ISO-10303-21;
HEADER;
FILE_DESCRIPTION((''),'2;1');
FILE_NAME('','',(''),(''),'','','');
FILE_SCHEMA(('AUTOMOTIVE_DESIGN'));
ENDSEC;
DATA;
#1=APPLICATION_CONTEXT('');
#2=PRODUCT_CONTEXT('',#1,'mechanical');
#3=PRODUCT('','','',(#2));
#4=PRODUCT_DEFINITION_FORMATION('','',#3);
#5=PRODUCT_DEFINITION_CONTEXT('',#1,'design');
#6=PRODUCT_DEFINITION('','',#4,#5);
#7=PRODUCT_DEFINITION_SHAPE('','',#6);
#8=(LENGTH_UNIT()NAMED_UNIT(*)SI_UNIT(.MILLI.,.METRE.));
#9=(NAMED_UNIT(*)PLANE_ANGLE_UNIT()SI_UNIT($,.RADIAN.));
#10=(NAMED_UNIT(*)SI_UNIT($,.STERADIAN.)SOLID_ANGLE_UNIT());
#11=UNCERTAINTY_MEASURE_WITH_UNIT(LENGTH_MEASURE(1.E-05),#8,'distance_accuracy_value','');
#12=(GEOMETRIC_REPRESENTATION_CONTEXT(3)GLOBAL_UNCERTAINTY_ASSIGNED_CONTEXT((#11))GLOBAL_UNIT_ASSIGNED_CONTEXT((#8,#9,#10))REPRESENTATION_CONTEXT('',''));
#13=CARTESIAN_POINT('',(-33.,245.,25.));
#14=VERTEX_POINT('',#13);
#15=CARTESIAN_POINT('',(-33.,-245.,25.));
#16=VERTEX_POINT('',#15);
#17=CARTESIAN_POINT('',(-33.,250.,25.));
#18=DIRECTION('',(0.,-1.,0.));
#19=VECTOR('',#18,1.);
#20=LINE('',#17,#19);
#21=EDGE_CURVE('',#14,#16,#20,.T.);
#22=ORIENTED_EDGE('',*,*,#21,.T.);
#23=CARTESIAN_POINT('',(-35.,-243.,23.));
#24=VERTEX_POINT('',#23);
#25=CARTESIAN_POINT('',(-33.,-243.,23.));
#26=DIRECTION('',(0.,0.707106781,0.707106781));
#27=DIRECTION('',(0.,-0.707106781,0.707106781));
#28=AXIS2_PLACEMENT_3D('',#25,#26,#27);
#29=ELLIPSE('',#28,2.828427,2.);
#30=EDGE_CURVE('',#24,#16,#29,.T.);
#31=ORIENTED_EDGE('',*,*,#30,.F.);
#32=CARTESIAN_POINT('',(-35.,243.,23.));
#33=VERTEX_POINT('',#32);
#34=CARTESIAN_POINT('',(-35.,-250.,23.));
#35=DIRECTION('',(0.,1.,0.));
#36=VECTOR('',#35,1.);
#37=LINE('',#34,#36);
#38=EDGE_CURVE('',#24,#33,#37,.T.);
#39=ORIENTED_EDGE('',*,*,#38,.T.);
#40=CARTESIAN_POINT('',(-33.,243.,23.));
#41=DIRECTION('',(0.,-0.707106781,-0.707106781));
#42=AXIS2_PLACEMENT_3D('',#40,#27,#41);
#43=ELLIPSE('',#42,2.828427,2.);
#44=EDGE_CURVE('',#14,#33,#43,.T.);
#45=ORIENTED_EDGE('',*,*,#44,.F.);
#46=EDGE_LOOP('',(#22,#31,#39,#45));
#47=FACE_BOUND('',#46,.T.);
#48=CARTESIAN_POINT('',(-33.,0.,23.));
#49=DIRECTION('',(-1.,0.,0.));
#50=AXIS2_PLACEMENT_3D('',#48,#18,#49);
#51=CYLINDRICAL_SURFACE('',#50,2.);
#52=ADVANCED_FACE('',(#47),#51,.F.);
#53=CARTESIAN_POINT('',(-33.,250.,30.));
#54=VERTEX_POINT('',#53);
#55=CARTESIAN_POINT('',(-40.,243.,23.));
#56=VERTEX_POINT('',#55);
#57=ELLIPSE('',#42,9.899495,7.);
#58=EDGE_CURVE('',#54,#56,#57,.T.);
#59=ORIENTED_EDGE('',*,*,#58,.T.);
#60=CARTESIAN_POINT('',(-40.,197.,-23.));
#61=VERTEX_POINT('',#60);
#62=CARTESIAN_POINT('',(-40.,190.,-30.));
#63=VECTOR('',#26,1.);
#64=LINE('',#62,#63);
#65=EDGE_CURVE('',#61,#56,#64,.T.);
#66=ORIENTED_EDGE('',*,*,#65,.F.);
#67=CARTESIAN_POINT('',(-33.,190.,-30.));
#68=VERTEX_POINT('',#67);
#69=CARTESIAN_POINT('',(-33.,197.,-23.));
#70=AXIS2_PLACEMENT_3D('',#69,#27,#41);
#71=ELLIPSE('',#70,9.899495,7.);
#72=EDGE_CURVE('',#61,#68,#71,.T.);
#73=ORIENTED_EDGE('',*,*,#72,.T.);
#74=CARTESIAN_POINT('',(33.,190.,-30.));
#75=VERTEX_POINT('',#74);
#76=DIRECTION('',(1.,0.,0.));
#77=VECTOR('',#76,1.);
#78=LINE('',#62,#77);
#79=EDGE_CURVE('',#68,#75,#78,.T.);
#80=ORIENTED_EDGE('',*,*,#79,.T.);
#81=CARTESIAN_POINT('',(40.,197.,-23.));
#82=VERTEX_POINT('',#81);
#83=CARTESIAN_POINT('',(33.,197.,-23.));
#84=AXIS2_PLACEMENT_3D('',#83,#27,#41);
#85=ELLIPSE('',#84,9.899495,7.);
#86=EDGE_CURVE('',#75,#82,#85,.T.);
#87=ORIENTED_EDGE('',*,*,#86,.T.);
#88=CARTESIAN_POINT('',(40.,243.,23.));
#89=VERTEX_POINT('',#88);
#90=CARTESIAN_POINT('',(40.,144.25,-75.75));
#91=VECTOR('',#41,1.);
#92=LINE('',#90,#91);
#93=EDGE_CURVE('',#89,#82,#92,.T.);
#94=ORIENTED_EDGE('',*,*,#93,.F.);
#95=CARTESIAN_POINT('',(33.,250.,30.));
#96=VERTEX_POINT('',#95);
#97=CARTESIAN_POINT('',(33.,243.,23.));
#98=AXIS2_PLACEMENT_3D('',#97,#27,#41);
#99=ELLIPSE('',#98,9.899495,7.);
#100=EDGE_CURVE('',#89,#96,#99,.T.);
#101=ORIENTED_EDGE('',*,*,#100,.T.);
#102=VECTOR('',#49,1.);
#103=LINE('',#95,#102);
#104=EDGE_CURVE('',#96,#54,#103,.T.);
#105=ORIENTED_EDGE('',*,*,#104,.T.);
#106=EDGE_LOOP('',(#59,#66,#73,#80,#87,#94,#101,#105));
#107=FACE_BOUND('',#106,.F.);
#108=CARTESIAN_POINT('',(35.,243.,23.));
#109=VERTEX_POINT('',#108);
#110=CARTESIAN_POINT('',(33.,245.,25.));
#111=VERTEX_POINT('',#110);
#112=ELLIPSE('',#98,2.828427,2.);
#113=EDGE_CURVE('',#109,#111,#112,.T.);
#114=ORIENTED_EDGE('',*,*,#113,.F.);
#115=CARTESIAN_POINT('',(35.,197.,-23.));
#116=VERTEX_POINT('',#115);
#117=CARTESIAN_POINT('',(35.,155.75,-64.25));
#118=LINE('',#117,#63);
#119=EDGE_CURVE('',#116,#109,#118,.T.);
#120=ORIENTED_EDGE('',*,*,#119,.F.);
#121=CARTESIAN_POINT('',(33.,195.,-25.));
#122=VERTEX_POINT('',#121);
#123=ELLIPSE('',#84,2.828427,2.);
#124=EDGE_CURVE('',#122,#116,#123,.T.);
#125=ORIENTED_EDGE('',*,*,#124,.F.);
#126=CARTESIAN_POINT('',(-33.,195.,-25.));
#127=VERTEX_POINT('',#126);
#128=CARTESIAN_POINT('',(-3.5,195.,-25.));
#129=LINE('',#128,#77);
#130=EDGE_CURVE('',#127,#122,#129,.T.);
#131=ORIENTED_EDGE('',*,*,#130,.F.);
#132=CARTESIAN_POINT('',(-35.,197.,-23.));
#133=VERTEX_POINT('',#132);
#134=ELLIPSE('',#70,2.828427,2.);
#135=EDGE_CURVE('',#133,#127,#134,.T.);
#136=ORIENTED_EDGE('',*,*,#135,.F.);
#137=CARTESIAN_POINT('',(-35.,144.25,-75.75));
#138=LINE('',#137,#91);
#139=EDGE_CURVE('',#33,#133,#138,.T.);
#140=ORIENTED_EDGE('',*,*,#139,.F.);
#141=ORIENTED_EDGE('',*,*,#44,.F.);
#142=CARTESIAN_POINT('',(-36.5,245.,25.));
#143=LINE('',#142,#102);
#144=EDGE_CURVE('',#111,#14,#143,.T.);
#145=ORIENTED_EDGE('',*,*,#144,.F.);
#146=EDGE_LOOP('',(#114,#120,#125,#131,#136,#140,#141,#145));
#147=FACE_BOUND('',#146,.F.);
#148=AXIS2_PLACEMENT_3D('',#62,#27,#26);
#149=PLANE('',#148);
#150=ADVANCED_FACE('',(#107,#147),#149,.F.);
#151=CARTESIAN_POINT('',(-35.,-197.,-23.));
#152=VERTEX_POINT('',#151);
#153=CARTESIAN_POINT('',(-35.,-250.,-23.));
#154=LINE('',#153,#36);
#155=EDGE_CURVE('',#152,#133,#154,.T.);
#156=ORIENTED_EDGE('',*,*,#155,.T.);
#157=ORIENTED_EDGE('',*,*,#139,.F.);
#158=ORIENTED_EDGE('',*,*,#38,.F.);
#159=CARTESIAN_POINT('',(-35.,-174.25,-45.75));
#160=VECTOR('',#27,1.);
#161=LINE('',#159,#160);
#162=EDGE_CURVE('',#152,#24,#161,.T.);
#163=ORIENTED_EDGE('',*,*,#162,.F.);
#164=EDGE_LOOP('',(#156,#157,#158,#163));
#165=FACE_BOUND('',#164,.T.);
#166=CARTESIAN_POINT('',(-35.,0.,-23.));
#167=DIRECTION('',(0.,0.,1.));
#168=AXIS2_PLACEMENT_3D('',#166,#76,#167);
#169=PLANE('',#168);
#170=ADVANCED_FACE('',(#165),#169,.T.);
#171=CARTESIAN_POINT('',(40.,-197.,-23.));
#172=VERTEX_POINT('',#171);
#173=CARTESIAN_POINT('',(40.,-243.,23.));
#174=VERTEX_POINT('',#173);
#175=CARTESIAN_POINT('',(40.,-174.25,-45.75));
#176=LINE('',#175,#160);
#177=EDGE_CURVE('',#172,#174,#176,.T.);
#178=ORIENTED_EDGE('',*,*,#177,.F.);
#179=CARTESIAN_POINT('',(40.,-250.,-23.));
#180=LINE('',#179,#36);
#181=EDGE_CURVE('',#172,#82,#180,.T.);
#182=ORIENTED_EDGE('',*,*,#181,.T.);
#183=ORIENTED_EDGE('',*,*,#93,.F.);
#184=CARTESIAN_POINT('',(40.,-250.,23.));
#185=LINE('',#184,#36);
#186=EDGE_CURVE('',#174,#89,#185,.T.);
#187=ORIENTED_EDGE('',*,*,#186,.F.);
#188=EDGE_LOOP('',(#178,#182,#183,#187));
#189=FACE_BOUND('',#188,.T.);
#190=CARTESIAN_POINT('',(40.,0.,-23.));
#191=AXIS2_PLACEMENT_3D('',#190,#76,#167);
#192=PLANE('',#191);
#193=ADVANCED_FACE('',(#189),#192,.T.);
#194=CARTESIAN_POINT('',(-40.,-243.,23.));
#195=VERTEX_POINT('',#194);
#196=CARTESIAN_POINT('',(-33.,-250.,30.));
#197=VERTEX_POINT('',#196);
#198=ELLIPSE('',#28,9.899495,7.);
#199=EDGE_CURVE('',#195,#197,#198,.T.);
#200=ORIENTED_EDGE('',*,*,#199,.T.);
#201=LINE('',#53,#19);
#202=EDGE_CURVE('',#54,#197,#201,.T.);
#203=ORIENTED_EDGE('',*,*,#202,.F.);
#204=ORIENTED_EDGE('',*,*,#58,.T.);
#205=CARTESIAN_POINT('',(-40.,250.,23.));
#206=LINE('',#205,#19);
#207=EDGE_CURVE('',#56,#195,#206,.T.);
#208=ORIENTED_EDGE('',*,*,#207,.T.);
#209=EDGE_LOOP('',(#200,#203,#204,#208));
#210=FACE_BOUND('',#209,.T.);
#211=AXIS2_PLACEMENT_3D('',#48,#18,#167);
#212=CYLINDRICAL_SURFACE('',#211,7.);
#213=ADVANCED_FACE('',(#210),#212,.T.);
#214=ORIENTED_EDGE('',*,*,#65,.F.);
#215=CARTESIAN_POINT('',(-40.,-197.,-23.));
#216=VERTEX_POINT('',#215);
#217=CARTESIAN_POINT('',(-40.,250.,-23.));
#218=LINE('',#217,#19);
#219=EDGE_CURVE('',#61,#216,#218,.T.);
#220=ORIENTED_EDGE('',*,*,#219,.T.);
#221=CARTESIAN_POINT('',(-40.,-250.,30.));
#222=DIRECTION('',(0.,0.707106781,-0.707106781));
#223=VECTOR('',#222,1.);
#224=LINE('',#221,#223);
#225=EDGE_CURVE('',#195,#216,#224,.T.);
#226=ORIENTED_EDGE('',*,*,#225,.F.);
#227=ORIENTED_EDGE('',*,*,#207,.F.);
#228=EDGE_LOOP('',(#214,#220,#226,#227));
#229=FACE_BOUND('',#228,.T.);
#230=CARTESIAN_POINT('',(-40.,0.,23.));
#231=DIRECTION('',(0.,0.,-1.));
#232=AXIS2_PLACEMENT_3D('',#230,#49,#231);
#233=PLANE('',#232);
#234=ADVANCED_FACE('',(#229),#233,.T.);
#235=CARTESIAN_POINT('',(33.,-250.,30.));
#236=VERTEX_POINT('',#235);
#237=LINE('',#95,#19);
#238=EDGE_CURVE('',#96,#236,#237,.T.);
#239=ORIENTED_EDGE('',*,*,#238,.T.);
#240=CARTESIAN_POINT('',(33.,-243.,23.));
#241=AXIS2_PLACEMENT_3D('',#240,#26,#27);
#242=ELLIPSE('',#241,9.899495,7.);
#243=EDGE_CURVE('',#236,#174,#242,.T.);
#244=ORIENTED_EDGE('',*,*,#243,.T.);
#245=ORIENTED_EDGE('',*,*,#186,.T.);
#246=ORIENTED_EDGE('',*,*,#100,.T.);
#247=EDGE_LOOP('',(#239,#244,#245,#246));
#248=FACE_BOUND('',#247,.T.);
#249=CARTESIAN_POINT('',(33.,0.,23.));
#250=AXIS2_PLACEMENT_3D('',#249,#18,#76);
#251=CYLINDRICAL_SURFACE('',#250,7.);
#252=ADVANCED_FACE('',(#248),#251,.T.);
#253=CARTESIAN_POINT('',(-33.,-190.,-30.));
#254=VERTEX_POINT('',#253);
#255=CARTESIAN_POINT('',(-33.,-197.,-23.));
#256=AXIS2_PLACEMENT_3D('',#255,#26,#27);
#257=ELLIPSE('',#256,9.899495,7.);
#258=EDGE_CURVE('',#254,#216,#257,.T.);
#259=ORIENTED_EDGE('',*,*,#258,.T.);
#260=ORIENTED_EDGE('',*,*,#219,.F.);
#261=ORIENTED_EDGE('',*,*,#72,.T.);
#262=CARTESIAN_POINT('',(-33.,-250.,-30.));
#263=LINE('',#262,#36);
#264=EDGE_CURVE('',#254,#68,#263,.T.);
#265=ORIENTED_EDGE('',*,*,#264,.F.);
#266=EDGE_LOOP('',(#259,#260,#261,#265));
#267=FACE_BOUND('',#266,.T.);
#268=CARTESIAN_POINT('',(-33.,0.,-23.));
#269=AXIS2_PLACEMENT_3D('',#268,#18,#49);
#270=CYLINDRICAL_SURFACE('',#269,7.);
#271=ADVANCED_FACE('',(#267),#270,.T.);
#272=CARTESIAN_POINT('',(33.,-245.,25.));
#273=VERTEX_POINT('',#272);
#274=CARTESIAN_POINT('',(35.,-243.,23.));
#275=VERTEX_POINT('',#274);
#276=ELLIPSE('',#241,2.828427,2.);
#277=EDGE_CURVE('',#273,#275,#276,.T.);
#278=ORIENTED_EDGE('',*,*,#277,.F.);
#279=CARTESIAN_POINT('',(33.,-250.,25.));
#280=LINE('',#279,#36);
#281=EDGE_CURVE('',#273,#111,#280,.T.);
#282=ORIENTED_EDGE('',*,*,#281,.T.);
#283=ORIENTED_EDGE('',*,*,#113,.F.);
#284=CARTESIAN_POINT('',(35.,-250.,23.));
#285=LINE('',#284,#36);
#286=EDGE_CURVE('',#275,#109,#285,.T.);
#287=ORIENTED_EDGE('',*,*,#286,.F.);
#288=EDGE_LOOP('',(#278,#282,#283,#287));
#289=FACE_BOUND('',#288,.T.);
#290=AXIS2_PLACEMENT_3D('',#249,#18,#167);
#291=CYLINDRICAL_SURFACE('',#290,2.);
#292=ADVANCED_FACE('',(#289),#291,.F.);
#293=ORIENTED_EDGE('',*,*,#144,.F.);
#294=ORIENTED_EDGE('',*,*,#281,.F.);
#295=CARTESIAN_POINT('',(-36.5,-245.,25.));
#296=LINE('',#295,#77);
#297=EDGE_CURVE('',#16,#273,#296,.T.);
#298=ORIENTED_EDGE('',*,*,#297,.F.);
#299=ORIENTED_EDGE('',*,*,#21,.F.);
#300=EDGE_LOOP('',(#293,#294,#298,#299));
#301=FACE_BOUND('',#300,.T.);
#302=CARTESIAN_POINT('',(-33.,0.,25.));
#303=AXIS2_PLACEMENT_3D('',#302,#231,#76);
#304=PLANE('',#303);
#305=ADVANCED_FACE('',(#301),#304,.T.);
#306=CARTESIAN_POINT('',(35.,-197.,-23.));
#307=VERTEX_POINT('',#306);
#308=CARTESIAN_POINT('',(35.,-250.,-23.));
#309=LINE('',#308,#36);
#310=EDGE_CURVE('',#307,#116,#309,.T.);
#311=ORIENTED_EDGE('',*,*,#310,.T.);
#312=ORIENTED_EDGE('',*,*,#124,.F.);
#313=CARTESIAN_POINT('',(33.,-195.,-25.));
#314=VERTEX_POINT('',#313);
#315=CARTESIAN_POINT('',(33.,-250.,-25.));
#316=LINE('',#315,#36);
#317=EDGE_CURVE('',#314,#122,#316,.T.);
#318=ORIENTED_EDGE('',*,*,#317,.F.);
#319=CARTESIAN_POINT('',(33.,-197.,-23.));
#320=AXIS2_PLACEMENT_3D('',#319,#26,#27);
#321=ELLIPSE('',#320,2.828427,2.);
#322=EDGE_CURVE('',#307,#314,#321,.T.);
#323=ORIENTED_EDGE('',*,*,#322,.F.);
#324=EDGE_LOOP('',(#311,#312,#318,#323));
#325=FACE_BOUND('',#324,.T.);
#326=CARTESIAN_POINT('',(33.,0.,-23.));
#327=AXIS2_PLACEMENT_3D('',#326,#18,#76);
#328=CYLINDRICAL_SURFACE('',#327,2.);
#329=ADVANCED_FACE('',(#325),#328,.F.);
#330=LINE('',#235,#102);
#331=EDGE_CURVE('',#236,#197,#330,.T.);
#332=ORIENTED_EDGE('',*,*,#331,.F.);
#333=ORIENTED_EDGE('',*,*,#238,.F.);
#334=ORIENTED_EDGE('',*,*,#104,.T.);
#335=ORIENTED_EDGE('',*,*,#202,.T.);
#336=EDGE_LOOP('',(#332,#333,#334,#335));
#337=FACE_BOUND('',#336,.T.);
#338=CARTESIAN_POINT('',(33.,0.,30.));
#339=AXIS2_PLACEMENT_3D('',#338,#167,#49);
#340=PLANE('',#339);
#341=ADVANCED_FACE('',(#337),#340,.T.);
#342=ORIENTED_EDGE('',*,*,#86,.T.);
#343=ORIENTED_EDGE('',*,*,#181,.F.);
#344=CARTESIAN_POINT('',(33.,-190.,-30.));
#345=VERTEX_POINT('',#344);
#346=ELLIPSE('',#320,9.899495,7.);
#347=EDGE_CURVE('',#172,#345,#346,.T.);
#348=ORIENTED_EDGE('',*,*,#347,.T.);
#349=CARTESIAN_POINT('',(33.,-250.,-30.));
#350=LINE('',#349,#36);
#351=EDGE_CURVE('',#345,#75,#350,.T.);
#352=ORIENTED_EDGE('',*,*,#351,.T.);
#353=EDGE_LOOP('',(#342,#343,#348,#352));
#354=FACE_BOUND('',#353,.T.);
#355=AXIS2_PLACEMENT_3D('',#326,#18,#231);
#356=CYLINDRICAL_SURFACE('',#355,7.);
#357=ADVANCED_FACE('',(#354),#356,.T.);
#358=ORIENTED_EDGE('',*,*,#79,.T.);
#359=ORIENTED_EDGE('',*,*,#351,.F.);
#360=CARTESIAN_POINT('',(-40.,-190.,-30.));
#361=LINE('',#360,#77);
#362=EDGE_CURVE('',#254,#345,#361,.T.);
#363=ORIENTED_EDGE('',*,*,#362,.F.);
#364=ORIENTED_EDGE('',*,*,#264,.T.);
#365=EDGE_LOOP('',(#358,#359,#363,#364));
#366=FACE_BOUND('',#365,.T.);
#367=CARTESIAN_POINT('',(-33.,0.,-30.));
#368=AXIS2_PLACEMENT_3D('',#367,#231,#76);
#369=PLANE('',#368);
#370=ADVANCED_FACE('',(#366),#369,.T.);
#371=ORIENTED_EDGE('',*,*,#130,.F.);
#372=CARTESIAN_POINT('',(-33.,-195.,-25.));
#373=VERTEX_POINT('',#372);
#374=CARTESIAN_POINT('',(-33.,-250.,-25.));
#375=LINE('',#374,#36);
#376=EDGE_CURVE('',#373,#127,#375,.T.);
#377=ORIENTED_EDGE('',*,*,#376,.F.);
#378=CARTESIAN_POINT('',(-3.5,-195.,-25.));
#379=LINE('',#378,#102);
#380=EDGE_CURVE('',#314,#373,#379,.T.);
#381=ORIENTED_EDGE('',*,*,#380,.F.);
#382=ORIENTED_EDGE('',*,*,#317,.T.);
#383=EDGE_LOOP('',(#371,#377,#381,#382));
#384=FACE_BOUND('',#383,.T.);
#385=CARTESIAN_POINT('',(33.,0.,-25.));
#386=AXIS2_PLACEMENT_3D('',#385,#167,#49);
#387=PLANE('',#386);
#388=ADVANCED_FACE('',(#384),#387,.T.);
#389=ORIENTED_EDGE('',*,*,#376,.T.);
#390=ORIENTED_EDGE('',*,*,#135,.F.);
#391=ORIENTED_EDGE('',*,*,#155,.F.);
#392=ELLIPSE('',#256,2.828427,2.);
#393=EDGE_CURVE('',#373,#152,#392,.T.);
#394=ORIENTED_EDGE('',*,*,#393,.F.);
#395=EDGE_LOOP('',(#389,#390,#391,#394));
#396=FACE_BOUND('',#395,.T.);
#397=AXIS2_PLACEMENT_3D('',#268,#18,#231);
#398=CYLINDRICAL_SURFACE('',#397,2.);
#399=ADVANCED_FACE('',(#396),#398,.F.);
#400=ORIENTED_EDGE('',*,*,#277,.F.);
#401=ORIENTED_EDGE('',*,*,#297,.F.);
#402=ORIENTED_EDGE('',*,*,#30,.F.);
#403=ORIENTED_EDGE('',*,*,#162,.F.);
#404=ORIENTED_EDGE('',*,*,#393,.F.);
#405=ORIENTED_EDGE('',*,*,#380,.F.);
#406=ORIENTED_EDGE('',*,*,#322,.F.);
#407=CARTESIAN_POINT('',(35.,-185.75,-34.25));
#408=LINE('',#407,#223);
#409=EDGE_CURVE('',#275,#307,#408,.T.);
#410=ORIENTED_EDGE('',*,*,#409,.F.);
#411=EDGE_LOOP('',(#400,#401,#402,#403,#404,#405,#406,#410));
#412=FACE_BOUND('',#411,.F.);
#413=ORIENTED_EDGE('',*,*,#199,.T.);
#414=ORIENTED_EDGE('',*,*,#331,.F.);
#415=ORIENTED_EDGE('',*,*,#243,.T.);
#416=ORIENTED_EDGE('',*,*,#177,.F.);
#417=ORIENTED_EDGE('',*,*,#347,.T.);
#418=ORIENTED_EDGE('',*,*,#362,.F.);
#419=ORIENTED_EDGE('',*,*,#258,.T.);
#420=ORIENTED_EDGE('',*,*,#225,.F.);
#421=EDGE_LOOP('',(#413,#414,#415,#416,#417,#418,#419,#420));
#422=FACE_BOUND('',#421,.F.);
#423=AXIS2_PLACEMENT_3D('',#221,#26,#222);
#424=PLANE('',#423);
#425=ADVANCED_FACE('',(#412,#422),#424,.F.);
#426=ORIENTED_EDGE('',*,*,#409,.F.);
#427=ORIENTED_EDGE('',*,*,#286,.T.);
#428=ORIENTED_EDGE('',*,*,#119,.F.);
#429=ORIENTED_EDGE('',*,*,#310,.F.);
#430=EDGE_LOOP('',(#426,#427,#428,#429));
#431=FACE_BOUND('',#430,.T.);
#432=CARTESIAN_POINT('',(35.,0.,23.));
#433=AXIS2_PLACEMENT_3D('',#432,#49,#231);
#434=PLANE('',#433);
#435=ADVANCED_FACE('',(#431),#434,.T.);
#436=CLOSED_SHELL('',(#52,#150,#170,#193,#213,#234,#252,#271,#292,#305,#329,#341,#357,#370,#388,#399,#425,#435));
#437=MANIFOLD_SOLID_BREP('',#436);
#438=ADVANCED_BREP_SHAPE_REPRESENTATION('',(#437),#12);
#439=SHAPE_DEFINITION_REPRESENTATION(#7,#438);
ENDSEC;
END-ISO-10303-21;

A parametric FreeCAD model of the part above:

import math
import FreeCAD as App
import Part
import Sketcher
from FreeCAD import Vector
Q = App.Units.Quantity


def add_polygon(sketch, points):
    """Adds a closed chain of lines whose ends are joined by coincident constraints."""
    first, n = sketch.GeometryCount, len(points)
    for a, b in zip(points, points[1:] + points[:1]):
        sketch.addGeometry(Part.LineSegment(App.Vector(*a, 0), App.Vector(*b, 0)), False)
    for i in range(n):
        sketch.addConstraint(Sketcher.Constraint("Coincident", first + i, 2, first + (i + 1) % n, 1))

doc = App.newDocument("Part")
body = doc.addObject("PartDesign::Body", "Body")

# Sketch on XZ plane
sketch1 = doc.addObject("Sketcher::SketchObject", "Sketch")
body.addObject(sketch1)
sketch1.AttachmentSupport = (doc.XZ_Plane, [""])
sketch1.MapMode = "FlatFace"
sketch1.addGeometry(Part.ArcOfCircle(Part.Circle(Vector(33, 23, 0), Vector(0, 0, 1), 7), math.radians(0), math.radians(90)), False)
sketch1.addGeometry(Part.LineSegment(Vector(33, 30, 0), Vector(-33, 30, 0)), False)
sketch1.addGeometry(Part.ArcOfCircle(Part.Circle(Vector(-33, 23, 0), Vector(0, 0, 1), 7), math.radians(90), math.radians(180)), False)
sketch1.addGeometry(Part.LineSegment(Vector(-40, 23, 0), Vector(-40, -23, 0)), False)
sketch1.addGeometry(Part.ArcOfCircle(Part.Circle(Vector(-33, -23, 0), Vector(0, 0, 1), 7), math.radians(180), math.radians(270)), False)
sketch1.addGeometry(Part.LineSegment(Vector(-33, -30, 0), Vector(33, -30, 0)), False)
sketch1.addGeometry(Part.ArcOfCircle(Part.Circle(Vector(33, -23, 0), Vector(0, 0, 1), 7), math.radians(-90), math.radians(0)), False)
sketch1.addGeometry(Part.LineSegment(Vector(40, -23, 0), Vector(40, 23, 0)), False)
sketch1.addGeometry(Part.ArcOfCircle(Part.Circle(Vector(-33, 23, 0), Vector(0, 0, 1), 2), math.radians(90), math.radians(180)), False)
sketch1.addGeometry(Part.LineSegment(Vector(-33, 25, 0), Vector(33, 25, 0)), False)
sketch1.addGeometry(Part.ArcOfCircle(Part.Circle(Vector(33, 23, 0), Vector(0, 0, 1), 2), math.radians(0), math.radians(90)), False)
sketch1.addGeometry(Part.LineSegment(Vector(35, 23, 0), Vector(35, -23, 0)), False)
sketch1.addGeometry(Part.ArcOfCircle(Part.Circle(Vector(33, -23, 0), Vector(0, 0, 1), 2), math.radians(-90), math.radians(0)), False)
sketch1.addGeometry(Part.LineSegment(Vector(33, -25, 0), Vector(-33, -25, 0)), False)
sketch1.addGeometry(Part.ArcOfCircle(Part.Circle(Vector(-33, -23, 0), Vector(0, 0, 1), 2), math.radians(180), math.radians(270)), False)
sketch1.addGeometry(Part.LineSegment(Vector(-35, -23, 0), Vector(-35, 23, 0)), False)
sketch1.addConstraint(Sketcher.Constraint("Tangent", 0, 2, 1, 1))
sketch1.addConstraint(Sketcher.Constraint("Tangent", 1, 2, 2, 1))
sketch1.addConstraint(Sketcher.Constraint("Tangent", 2, 2, 3, 1))
sketch1.addConstraint(Sketcher.Constraint("Tangent", 3, 2, 4, 1))
sketch1.addConstraint(Sketcher.Constraint("Tangent", 4, 2, 5, 1))
sketch1.addConstraint(Sketcher.Constraint("Tangent", 5, 2, 6, 1))
sketch1.addConstraint(Sketcher.Constraint("Tangent", 6, 2, 7, 1))
sketch1.addConstraint(Sketcher.Constraint("Tangent", 7, 2, 0, 1))
sketch1.addConstraint(Sketcher.Constraint("Tangent", 8, 1, 9, 1))
sketch1.addConstraint(Sketcher.Constraint("Tangent", 9, 2, 10, 2))
sketch1.addConstraint(Sketcher.Constraint("Tangent", 10, 1, 11, 1))
sketch1.addConstraint(Sketcher.Constraint("Tangent", 11, 2, 12, 2))
sketch1.addConstraint(Sketcher.Constraint("Tangent", 12, 1, 13, 1))
sketch1.addConstraint(Sketcher.Constraint("Tangent", 13, 2, 14, 2))
sketch1.addConstraint(Sketcher.Constraint("Tangent", 14, 1, 15, 1))
sketch1.addConstraint(Sketcher.Constraint("Tangent", 15, 2, 8, 2))
sketch1.addConstraint(Sketcher.Constraint("Horizontal", 1))
sketch1.addConstraint(Sketcher.Constraint("Vertical", 3))
sketch1.addConstraint(Sketcher.Constraint("Horizontal", 5))
sketch1.addConstraint(Sketcher.Constraint("Vertical", 7))
sketch1.addConstraint(Sketcher.Constraint("Horizontal", 9))
sketch1.addConstraint(Sketcher.Constraint("Vertical", 11))
sketch1.addConstraint(Sketcher.Constraint("Horizontal", 13))
sketch1.addConstraint(Sketcher.Constraint("Vertical", 15))
sketch1.addConstraint(Sketcher.Constraint("Coincident", 8, 3, 2, 3))
sketch1.addConstraint(Sketcher.Constraint("Coincident", 10, 3, 0, 3))
sketch1.addConstraint(Sketcher.Constraint("Coincident", 12, 3, 6, 3))
sketch1.addConstraint(Sketcher.Constraint("Equal", 0, 2))
sketch1.addConstraint(Sketcher.Constraint("Equal", 2, 4))
sketch1.addConstraint(Sketcher.Constraint("Equal", 4, 6))
sketch1.addConstraint(Sketcher.Constraint("Equal", 12, 14))
sketch1.addConstraint(Sketcher.Constraint("Symmetric", 0, 3, 4, 3, -1, 1))
sketch1.addConstraint(Sketcher.Constraint("Radius", 0, Q("7 mm")))
sketch1.addConstraint(Sketcher.Constraint("Radius", 8, Q("2 mm")))
sketch1.addConstraint(Sketcher.Constraint("DistanceX", 1, 2, 1, 1, Q("66 mm")))
sketch1.addConstraint(Sketcher.Constraint("DistanceY", 3, 2, 3, 1, Q("46 mm")))
pad1 = doc.addObject("PartDesign::Pad", "Pad")
body.addObject(pad1)
pad1.Profile = sketch1
pad1.Length = 500
pad1.Midplane = True

# Sketch on YZ plane
sketch2 = doc.addObject("Sketcher::SketchObject", "Sketch001")
body.addObject(sketch2)
sketch2.AttachmentSupport = (doc.YZ_Plane, [""])
sketch2.MapMode = "FlatFace"
sketch2.AttachmentOffset = App.Placement(Vector(0, 0, -40), App.Rotation())
add_polygon(sketch2, [(250, -30), (190, -30), (250, 30)])  # lines 0-2
add_polygon(sketch2, [(-190, -30), (-250, -30), (-250, 30)])  # lines 3-5
sketch2.addConstraint(Sketcher.Constraint("Horizontal", 0))
sketch2.addConstraint(Sketcher.Constraint("Vertical", 2))
sketch2.addConstraint(Sketcher.Constraint("Horizontal", 3))
sketch2.addConstraint(Sketcher.Constraint("Vertical", 4))
sketch2.addConstraint(Sketcher.Constraint("Symmetric", 1, 2, 3, 2, -1, 1))
sketch2.addConstraint(Sketcher.Constraint("Symmetric", 0, 2, 5, 2, -2))
sketch2.addConstraint(Sketcher.Constraint("Perpendicular", 1, 5))
sketch2.addConstraint(Sketcher.Constraint("Horizontal", 1, 2, 4, 2))
sketch2.addConstraint(Sketcher.Constraint("DistanceX", 0, 2, 0, 1, Q("60 mm")))
sketch2.addConstraint(Sketcher.Constraint("DistanceX", -1, 1, 0, 2, Q("190 mm")))
pocket1 = doc.addObject("PartDesign::Pocket", "Pocket")
body.addObject(pocket1)
pocket1.Profile = sketch2
pocket1.Length = 200
pocket1.Reversed = True

doc.recompute()
